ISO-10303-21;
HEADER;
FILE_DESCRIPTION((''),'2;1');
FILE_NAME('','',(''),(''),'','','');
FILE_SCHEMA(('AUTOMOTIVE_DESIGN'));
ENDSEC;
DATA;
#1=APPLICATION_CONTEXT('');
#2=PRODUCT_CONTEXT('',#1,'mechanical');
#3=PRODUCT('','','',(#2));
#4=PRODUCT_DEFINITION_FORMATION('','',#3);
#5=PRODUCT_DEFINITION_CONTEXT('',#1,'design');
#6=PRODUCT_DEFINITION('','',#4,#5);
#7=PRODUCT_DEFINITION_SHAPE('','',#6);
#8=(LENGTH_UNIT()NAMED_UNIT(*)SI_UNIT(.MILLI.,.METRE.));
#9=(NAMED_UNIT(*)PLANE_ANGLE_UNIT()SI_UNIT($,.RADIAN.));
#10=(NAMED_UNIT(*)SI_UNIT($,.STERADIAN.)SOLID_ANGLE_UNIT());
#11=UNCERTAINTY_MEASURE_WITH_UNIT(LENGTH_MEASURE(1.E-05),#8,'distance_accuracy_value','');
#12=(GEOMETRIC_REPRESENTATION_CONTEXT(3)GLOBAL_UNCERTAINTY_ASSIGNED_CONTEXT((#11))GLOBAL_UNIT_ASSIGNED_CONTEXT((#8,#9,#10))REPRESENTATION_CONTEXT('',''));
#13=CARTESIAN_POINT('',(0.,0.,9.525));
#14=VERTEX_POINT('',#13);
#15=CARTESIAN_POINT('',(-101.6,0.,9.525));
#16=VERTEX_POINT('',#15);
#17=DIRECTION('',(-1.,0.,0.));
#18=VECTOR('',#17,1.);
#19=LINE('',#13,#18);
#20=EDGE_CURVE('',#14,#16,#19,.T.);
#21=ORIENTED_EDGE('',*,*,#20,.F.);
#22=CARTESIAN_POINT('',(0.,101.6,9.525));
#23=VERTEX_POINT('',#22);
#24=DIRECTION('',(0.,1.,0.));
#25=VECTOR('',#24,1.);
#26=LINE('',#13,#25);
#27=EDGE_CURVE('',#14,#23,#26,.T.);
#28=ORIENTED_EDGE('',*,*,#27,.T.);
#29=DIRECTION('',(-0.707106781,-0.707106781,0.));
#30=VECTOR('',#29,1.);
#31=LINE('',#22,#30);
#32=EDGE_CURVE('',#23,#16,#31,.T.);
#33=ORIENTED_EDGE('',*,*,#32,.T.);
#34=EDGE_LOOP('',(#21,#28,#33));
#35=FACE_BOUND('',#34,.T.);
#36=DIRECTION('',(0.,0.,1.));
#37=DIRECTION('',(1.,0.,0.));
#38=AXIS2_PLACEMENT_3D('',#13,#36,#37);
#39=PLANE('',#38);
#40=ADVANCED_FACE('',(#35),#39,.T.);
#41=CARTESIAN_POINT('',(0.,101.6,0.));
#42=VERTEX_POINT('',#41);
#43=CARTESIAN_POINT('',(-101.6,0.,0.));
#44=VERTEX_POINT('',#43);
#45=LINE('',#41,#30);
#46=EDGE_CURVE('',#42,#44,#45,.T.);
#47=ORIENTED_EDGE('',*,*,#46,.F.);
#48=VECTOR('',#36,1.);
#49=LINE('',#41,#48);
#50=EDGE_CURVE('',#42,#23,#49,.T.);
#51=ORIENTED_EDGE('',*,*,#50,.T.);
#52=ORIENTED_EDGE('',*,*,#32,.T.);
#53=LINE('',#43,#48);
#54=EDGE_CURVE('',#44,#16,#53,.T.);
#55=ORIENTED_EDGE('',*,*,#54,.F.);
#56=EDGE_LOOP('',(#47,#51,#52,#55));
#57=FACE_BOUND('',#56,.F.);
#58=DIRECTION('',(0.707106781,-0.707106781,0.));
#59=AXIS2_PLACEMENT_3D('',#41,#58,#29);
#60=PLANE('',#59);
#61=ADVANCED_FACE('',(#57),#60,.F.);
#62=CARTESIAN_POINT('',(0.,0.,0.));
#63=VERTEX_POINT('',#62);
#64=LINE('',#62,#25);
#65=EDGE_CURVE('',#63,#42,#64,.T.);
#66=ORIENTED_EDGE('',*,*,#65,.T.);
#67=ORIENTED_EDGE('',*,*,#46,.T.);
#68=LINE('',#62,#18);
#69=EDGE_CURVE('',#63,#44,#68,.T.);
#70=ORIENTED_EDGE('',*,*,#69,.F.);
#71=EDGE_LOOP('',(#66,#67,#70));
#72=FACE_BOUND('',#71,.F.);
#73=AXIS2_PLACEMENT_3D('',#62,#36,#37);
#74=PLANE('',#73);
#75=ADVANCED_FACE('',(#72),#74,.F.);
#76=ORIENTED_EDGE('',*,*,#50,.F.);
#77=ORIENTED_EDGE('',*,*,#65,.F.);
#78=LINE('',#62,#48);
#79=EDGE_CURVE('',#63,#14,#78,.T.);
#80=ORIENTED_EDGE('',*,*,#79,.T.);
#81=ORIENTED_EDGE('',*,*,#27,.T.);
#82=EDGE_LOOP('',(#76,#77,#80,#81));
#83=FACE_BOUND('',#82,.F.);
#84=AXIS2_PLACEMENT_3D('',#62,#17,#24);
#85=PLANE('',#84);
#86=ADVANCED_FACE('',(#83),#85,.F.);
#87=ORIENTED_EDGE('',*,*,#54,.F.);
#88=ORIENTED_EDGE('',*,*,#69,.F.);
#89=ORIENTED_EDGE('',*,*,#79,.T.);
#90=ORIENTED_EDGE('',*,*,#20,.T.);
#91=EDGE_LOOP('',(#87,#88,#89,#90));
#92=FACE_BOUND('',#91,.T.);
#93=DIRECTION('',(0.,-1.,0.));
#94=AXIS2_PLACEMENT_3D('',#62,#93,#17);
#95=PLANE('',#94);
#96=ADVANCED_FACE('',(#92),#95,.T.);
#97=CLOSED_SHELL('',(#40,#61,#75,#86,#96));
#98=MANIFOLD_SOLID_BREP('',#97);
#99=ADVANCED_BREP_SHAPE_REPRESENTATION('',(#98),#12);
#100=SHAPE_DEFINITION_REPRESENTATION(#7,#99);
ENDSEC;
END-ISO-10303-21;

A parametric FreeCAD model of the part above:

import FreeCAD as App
import Part
import Sketcher
from FreeCAD import Vector
Q = App.Units.Quantity


def add_polygon(sketch, points):
    """Adds a closed chain of lines whose ends are joined by coincident constraints."""
    first, n = sketch.GeometryCount, len(points)
    for a, b in zip(points, points[1:] + points[:1]):
        sketch.addGeometry(Part.LineSegment(App.Vector(*a, 0), App.Vector(*b, 0)), False)
    for i in range(n):
        sketch.addConstraint(Sketcher.Constraint("Coincident", first + i, 2, first + (i + 1) % n, 1))

doc = App.newDocument("Part")
params = doc.addObject("Spreadsheet::Sheet", "Params")
for row, (alias, value) in enumerate([
    ("sketch1_width", "4 in"),
    ("pad1_length", "0.375 in"),
], start=1):
    params.set(f"A{row}", alias)
    params.set(f"B{row}", "=" + value)
    params.setAlias(f"B{row}", alias)

body = doc.addObject("PartDesign::Body", "Body")

# Sketch on XY plane
sketch1 = body.newObject("Sketcher::SketchObject", "Sketch")
sketch1.AttachmentSupport = (doc.getObject("XY_Plane"), [""])
sketch1.MapMode = "FlatFace"
add_polygon(sketch1, [(-102, 0), (0, 0), (0, 102)])  # lines 0-2
sketch1.addConstraint([
    Sketcher.Constraint("Horizontal", 0),
    Sketcher.Constraint("Vertical", 1),
    Sketcher.Constraint("Coincident", 0, 2, -1, 1),
    Sketcher.Constraint("Equal", 0, 1),
    Sketcher.Constraint("DistanceX", 0, 1, 0, 2, Q("4 in")),
])
sketch1.setExpression("Constraints[7]", "Params.sketch1_width")
pad1 = body.newObject("PartDesign::Pad", "Pad")
pad1.Profile = sketch1
pad1.setExpression("Length", "Params.pad1_length")

doc.recompute()
